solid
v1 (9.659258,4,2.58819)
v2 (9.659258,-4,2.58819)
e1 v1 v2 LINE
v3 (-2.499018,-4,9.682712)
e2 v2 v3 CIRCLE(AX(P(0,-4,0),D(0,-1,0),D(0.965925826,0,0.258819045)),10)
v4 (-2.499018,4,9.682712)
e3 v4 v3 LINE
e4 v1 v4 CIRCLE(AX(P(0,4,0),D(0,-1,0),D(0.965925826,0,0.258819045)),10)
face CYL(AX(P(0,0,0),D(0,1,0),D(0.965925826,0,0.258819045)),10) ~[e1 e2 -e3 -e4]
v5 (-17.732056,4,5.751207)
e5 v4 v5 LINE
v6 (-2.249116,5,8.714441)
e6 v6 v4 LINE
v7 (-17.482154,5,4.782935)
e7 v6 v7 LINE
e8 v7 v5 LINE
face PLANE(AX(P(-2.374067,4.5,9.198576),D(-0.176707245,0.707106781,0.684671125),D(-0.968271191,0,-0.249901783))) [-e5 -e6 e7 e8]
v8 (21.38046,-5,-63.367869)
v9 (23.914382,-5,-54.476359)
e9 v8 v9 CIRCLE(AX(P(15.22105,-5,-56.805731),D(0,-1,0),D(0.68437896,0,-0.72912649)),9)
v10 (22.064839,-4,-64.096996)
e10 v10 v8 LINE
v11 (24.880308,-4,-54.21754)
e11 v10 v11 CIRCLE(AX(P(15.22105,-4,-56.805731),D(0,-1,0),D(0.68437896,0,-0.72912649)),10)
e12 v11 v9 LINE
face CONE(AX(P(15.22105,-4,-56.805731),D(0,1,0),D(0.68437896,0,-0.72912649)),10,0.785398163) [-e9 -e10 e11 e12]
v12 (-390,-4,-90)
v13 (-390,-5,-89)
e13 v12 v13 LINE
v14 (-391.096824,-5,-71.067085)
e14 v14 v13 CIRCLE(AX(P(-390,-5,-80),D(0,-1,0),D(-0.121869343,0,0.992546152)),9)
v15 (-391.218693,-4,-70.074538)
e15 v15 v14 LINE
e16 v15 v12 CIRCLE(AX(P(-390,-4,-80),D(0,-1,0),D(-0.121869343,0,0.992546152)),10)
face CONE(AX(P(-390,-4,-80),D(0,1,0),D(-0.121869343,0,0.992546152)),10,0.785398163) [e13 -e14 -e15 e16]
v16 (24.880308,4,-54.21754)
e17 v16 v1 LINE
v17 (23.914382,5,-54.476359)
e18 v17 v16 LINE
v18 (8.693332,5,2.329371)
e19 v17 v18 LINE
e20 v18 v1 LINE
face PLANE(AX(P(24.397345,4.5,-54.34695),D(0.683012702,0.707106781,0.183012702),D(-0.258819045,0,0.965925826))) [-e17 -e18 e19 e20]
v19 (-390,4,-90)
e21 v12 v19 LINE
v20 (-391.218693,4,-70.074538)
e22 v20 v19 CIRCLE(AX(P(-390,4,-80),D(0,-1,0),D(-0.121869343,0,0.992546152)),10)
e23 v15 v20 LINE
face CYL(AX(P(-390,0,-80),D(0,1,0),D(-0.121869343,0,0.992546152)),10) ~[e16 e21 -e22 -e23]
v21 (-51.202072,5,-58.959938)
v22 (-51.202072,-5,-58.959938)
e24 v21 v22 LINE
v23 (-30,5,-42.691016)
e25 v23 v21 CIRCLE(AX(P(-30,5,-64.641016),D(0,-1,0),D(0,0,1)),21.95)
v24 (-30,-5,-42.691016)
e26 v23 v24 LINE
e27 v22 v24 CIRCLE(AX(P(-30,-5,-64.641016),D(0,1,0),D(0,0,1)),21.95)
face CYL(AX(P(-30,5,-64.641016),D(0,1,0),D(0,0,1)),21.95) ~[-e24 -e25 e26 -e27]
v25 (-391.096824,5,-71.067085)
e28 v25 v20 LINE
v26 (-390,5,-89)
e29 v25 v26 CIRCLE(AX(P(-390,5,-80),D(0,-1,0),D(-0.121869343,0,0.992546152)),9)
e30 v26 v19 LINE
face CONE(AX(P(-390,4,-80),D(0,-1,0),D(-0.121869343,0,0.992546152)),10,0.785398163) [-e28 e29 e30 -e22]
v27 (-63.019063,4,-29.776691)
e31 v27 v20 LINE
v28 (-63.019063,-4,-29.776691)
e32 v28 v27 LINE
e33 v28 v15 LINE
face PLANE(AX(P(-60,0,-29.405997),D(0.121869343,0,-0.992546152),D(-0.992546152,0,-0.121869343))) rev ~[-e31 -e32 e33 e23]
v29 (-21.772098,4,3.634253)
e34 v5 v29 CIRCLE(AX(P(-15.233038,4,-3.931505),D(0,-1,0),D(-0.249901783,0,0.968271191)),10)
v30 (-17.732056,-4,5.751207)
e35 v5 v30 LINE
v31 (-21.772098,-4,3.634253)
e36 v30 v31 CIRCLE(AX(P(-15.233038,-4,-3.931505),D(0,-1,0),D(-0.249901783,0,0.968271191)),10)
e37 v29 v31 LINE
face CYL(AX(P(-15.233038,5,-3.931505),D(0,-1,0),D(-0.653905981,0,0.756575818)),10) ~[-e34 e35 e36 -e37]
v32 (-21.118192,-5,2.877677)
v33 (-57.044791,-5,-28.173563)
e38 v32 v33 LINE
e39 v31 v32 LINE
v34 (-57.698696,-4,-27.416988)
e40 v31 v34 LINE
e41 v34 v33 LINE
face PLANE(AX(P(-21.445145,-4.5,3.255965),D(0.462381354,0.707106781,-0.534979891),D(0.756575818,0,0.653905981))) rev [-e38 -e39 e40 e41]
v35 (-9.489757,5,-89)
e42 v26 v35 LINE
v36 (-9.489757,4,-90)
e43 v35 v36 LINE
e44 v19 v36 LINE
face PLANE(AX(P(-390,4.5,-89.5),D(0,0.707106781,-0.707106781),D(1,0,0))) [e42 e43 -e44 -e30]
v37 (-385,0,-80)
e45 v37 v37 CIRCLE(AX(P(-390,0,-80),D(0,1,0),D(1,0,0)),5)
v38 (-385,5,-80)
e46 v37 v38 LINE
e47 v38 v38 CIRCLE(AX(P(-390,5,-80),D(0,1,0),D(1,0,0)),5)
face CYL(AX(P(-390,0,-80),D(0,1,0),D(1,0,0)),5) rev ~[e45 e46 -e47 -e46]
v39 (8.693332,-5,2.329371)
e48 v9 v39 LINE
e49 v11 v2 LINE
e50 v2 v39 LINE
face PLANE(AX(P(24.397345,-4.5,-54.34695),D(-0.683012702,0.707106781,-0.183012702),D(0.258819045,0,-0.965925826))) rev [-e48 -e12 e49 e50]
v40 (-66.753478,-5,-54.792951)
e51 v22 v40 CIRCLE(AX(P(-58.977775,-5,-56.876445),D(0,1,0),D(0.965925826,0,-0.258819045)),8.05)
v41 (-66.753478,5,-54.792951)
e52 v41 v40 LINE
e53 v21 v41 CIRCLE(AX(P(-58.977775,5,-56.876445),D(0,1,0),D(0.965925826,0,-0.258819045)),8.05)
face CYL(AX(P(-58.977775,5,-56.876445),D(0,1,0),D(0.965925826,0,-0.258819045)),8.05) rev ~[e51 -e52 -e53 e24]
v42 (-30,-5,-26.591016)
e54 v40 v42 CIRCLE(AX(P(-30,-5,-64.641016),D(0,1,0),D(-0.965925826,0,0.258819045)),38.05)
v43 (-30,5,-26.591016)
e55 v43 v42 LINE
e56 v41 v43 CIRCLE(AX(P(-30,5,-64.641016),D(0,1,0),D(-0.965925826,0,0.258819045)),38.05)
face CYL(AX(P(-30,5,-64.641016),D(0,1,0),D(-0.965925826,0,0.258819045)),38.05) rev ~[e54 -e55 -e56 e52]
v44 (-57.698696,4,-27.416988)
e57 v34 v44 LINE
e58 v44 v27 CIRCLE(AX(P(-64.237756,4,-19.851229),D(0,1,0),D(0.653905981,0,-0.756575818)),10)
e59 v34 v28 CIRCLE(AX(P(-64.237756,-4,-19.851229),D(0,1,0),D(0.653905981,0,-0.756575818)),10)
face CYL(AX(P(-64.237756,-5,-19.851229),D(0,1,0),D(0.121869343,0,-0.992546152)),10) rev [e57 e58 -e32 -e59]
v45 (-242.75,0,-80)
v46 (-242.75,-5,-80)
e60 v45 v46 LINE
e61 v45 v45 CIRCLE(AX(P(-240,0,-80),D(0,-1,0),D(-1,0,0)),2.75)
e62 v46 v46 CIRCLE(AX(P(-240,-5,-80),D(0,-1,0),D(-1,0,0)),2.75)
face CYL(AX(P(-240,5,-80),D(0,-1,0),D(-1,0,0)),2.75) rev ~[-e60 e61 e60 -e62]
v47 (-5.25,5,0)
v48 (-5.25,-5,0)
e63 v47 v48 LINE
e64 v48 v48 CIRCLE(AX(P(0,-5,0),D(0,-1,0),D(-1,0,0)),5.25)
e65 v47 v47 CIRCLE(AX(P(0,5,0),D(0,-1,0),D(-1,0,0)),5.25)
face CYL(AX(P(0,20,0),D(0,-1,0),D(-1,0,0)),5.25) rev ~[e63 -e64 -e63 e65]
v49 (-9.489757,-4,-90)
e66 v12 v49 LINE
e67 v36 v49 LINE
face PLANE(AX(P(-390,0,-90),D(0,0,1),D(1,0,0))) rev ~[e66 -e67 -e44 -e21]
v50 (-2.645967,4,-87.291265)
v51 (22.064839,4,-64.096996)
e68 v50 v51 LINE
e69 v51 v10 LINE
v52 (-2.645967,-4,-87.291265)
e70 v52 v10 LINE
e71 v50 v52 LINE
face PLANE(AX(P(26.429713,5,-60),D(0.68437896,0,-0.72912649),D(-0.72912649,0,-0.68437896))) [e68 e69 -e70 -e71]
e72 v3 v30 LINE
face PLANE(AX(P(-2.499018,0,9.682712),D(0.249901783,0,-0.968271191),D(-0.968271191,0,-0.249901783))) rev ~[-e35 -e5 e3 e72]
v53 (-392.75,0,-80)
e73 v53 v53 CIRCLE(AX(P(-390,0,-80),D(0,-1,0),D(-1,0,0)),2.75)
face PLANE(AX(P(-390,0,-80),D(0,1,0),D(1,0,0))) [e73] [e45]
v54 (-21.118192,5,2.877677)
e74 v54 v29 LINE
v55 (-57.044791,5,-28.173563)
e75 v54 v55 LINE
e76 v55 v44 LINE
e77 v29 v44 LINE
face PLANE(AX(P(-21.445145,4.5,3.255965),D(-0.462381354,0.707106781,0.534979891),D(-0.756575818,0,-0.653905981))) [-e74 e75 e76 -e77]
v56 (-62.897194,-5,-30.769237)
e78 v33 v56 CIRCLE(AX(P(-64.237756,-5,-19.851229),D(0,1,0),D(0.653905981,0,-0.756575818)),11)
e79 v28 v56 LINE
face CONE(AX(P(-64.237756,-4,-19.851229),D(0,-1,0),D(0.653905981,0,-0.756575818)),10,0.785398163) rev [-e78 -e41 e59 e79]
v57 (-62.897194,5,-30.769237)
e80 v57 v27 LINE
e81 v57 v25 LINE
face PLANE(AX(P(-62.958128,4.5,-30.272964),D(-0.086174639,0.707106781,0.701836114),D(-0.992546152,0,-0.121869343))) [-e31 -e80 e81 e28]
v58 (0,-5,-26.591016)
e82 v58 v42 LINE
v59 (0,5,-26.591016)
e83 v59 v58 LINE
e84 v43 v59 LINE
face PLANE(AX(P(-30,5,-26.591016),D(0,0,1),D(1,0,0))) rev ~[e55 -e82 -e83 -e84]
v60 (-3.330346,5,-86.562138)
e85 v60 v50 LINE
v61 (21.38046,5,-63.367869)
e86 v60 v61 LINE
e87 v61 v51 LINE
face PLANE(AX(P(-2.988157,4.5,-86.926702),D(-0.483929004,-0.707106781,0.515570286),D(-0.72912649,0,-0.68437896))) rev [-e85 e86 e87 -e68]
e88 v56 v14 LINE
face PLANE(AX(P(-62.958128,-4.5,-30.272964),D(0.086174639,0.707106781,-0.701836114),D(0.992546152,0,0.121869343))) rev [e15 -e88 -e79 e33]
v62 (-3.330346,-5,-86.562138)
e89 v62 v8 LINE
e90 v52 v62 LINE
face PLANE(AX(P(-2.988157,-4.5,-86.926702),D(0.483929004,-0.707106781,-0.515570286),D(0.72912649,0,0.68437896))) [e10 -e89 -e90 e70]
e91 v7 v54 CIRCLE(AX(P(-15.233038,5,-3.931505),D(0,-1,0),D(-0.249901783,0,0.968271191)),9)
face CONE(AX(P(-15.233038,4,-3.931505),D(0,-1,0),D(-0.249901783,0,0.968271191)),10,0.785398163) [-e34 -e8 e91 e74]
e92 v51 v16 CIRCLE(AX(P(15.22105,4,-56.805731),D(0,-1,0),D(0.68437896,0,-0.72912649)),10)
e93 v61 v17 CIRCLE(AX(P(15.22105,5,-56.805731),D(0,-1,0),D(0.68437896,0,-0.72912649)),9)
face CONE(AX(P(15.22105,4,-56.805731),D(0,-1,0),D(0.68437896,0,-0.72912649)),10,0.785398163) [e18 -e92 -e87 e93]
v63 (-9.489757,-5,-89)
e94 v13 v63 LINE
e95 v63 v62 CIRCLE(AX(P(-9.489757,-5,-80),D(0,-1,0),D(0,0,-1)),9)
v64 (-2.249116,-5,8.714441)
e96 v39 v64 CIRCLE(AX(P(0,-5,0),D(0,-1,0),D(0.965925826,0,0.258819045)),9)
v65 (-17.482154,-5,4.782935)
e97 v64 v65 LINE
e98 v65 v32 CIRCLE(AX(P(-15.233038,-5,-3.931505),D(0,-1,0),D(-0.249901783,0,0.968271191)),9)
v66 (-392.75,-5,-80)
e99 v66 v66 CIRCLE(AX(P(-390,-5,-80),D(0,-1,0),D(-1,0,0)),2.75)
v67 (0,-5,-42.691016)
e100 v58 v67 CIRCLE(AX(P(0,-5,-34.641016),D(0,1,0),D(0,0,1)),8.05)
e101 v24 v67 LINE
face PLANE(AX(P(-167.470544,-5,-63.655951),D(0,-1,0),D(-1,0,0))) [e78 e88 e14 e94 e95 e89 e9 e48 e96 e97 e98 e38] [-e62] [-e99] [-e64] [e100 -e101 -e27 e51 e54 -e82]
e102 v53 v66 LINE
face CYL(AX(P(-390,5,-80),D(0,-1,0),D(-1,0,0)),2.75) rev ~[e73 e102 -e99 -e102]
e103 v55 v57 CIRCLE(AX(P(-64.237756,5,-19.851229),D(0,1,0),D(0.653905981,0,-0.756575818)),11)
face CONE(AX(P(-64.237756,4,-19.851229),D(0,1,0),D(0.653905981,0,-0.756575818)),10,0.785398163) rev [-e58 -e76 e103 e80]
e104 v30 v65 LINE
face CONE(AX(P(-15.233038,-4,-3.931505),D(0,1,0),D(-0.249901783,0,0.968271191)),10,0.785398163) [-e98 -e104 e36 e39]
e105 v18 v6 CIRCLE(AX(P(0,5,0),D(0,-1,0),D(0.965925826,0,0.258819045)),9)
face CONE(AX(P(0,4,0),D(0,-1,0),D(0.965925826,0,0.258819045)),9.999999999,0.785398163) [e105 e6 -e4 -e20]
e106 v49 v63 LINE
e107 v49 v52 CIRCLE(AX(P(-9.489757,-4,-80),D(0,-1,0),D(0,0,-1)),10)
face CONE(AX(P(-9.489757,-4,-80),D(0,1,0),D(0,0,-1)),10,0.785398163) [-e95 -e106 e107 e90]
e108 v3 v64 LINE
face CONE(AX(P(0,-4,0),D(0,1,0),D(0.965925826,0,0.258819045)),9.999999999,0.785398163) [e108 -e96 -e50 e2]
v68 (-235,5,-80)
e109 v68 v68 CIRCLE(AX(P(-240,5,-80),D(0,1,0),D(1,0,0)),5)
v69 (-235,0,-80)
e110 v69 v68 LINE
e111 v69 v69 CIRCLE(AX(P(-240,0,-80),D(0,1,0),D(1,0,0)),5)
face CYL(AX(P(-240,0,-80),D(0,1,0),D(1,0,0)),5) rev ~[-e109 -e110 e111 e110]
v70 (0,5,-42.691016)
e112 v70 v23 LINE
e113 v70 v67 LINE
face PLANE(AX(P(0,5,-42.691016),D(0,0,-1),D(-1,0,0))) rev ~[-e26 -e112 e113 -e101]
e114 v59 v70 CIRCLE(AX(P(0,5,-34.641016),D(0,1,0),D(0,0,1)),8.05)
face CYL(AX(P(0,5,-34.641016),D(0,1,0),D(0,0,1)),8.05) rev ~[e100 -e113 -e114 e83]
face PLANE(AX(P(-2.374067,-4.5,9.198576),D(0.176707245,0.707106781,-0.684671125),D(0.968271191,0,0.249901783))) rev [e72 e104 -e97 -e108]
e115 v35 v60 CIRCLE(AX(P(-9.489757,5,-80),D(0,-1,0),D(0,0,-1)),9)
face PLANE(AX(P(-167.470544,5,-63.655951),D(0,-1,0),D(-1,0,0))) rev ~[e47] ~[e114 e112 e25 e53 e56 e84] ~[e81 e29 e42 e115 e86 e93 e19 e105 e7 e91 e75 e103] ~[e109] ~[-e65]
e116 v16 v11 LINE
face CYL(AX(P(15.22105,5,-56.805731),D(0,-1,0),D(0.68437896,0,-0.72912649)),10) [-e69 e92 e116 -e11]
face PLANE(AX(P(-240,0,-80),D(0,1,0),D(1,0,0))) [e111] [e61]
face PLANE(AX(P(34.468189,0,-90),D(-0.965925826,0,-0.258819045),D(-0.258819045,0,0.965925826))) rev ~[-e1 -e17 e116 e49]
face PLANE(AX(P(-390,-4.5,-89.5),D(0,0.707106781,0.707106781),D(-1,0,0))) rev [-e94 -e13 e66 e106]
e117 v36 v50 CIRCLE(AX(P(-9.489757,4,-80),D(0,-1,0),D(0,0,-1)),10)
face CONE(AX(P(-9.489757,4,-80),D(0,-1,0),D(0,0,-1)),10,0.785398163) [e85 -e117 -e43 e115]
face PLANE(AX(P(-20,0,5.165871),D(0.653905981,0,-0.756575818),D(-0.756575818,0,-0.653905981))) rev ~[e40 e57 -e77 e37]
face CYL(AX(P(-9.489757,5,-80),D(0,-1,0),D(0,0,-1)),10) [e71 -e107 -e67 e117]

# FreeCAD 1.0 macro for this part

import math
import FreeCAD as App
import Part
import Sketcher

V = App.Vector
Q = App.Units.Quantity


def edges_at(feature, points):
    """Names of the edges that pass closest to the given points."""
    edges = feature.Shape.Edges
    near = lambda p: min(range(len(edges)), key=lambda i: edges[i].distToShape(Part.Vertex(*p))[0])
    return sorted({f"Edge{near(p) + 1}" for p in points})


def add_polygon(sketch, points):
    """Adds a closed chain of lines whose ends are joined by coincident constraints."""
    first, n = sketch.GeometryCount, len(points)
    for a, b in zip(points, points[1:] + points[:1]):
        sketch.addGeometry(Part.LineSegment(App.Vector(*a, 0), App.Vector(*b, 0)), False)
    for i in range(n):
        sketch.addConstraint(Sketcher.Constraint("Coincident", first + i, 2, first + (i + 1) % n, 1))

doc = App.newDocument("Part")
body = doc.addObject("PartDesign::Body", "Body")

sketch1 = doc.addObject("Sketcher::SketchObject", "Sketch")
body.addObject(sketch1)
sketch1.AttachmentSupport = (doc.XZ_Plane, [""])
sketch1.MapMode = "FlatFace"
sketch1.addGeometry([
    Part.LineSegment(V(34.468189, -90, 0), V(-390, -90, 0)),
    Part.ArcOfCircle(Part.Circle(V(-390, -80, 0), V(0, 0, 1), 10), math.radians(97), math.radians(270)),
    Part.LineSegment(V(-391.218693, -70.074538, 0), V(-60, -29.405997, 0)),
    Part.LineSegment(V(-60, -29.405997, 0), V(-20, 5.165871, 0)),
    Part.LineSegment(V(-20, 5.165871, 0), V(-2.499018, 9.682712, 0)),
    Part.ArcOfCircle(Part.Circle(V(0, 0, 0), V(0, 0, 1), 10), math.radians(15), math.radians(104.4717)),
    Part.LineSegment(V(9.659258, 2.58819, 0), V(34.468189, -90, 0)),
], False)
sketch1.addConstraint([
    Sketcher.Constraint("Tangent", 0, 2, 1, 2),
    Sketcher.Constraint("Tangent", 1, 1, 2, 1),
    Sketcher.Constraint("Coincident", 2, 2, 3, 1),
    Sketcher.Constraint("Coincident", 3, 2, 4, 1),
    Sketcher.Constraint("Tangent", 4, 2, 5, 2),
    Sketcher.Constraint("Tangent", 5, 1, 6, 1),
    Sketcher.Constraint("Coincident", 6, 2, 0, 1),
    Sketcher.Constraint("Horizontal", 0),
    Sketcher.Constraint("Coincident", 5, 3, -1, 1),
    Sketcher.Constraint("Equal", 1, 5),
    Sketcher.Constraint("Radius", 1, Q("10 mm")),
    Sketcher.Constraint("Angle", 2, Q("7 deg")),
    Sketcher.Constraint("Angle", 6, Q("-75 deg")),
    Sketcher.Constraint("DistanceX", 1, 3, -1, 1, Q("390 mm")),
    Sketcher.Constraint("DistanceY", 1, 3, -1, 1, Q("80 mm")),
    Sketcher.Constraint("DistanceX", 2, 2, -1, 1, Q("60 mm")),
    Sketcher.Constraint("DistanceX", 3, 2, -1, 1, Q("20 mm")),
    Sketcher.Constraint("DistanceY", -1, 1, 3, 2, Q("5.165871 mm")),
])
pad1 = doc.addObject("PartDesign::Pad", "Pad")
body.addObject(pad1)
pad1.Profile = sketch1
pad1.Length = 10
pad1.Midplane = True

sketch2 = doc.addObject("Sketcher::SketchObject", "Sketch001")
body.addObject(sketch2)
sketch2.AttachmentSupport = (doc.XZ_Plane, [""])
sketch2.MapMode = "FlatFace"
sketch2.AttachmentOffset = App.Placement(V(0, 0, -5), App.Rotation())
sketch2.addGeometry([
    Part.LineSegment(V(-30, -26.591016, 0), V(0, -26.591016, 0)),
    Part.ArcOfCircle(Part.Circle(V(0, -34.641016, 0), V(0, 0, 1), 8.05), math.radians(-90), math.radians(90)),
    Part.LineSegment(V(0, -42.691016, 0), V(-30, -42.691016, 0)),
    Part.ArcOfCircle(Part.Circle(V(-30, -64.641016, 0), V(0, 0, 1), 21.95), math.radians(90), math.radians(165)),
    Part.ArcOfCircle(Part.Circle(V(-58.977775, -56.876445, 0), V(0, 0, 1), 8.05), math.radians(165), math.radians(345)),
    Part.ArcOfCircle(Part.Circle(V(-30, -64.641016, 0), V(0, 0, 1), 38.05), math.radians(90), math.radians(165)),
], False)
sketch2.addConstraint([
    Sketcher.Constraint("Tangent", 0, 2, 1, 2),
    Sketcher.Constraint("Tangent", 1, 1, 2, 1),
    Sketcher.Constraint("Tangent", 2, 2, 3, 1),
    Sketcher.Constraint("Tangent", 3, 2, 4, 2),
    Sketcher.Constraint("Tangent", 4, 1, 5, 2),
    Sketcher.Constraint("Tangent", 5, 1, 0, 1),
    Sketcher.Constraint("Horizontal", 0),
    Sketcher.Constraint("Horizontal", 2),
    Sketcher.Constraint("Coincident", 5, 3, 3, 3),
    Sketcher.Constraint("PointOnObject", 1, 3, -2),
    Sketcher.Constraint("DistanceX", 0, 1, 0, 2, Q("30 mm")),
    Sketcher.Constraint("Radius", 1, Q("8.05 mm")),
    Sketcher.Constraint("Radius", 3, Q("21.95 mm")),
    Sketcher.Constraint("DistanceX", 3, 2, -1, 1, Q("51.202072 mm")),
    Sketcher.Constraint("DistanceY", 4, 1, -1, 1, Q("54.792951 mm")),
])
pocket1 = doc.addObject("PartDesign::Pocket", "Pocket")
body.addObject(pocket1)
pocket1.Profile = sketch2
pocket1.Type = "ThroughAll"
pocket1.Reversed = True

sketch3 = doc.addObject("Sketcher::SketchObject", "Sketch002")
body.addObject(sketch3)
sketch3.AttachmentSupport = (doc.XZ_Plane, [""])
sketch3.MapMode = "FlatFace"
sketch3.AttachmentOffset = App.Placement(V(0, 0, -5), App.Rotation())
sketch3.addGeometry(Part.Circle(V(0, 0, 0), V(0, 0, 1), 5.25), False)
sketch3.addConstraint([
    Sketcher.Constraint("Coincident", 0, 3, -1, 1),
    Sketcher.Constraint("Diameter", 0, Q("10.5 mm")),
])
doc.recompute()
hole = doc.addObject("PartDesign::Hole", "Hole")
body.addObject(hole)
hole.Profile = sketch3
hole.ThreadType = "None"
hole.Diameter = 10.5
hole.DepthType = "Dimension"
hole.Depth = 15
hole.DrillPoint = "Angled"
hole.DrillPointAngle = 118
hole.Reversed = True

sketch4 = doc.addObject("Sketcher::SketchObject", "Sketch003")
body.addObject(sketch4)
sketch4.AttachmentSupport = (doc.XZ_Plane, [""])
sketch4.MapMode = "FlatFace"
sketch4.AttachmentOffset = App.Placement(V(0, 0, -5), App.Rotation())
sketch4.addGeometry([
    Part.Circle(V(-390, -80, 0), V(0, 0, 1), 2.75),
    Part.Circle(V(-240, -80, 0), V(0, 0, 1), 2.75),
], False)
sketch4.addConstraint([
    Sketcher.Constraint("Equal", 0, 1),
    Sketcher.Constraint("Horizontal", 0, 3, 1, 3),
    Sketcher.Constraint("Diameter", 0, Q("5.5 mm")),
    Sketcher.Constraint("DistanceX", 0, 3, -1, 1, Q("390 mm")),
    Sketcher.Constraint("DistanceY", 0, 3, -1, 1, Q("80 mm")),
    Sketcher.Constraint("DistanceX", 1, 3, -1, 1, Q("240 mm")),
])
doc.recompute()
hole2 = doc.addObject("PartDesign::Hole", "Hole001")
body.addObject(hole2)
hole2.Profile = sketch4
hole2.ThreadType = "None"
hole2.Diameter = 5.5
hole2.DepthType = "Dimension"
hole2.Depth = 15
hole2.DrillPoint = "Angled"
hole2.DrillPointAngle = 118
hole2.HoleCutType = "Counterbore"
hole2.HoleCutDiameter = 10
hole2.HoleCutDepth = 5
hole2.Reversed = True

sketch5 = doc.addObject("Sketcher::SketchObject", "Sketch004")
body.addObject(sketch5)
sketch5.AttachmentSupport = (doc.XZ_Plane, [""])
sketch5.MapMode = "FlatFace"
sketch5.AttachmentOffset = App.Placement(V(0, 0, -5), App.Rotation())
add_polygon(sketch5, [(34.468189, -90), (-5.531811, -90), (26.429713, -60)])
sketch5.addConstraint([
    Sketcher.Constraint("Horizontal", 0),
    Sketcher.Constraint("DistanceX", 0, 2, 0, 1, Q("40 mm")),
    Sketcher.Constraint("Angle", 2, Q("-75 deg")),
    Sketcher.Constraint("DistanceY", 0, 2, -1, 1, Q("90 mm")),
    Sketcher.Constraint("DistanceY", 1, 2, -1, 1, Q("60 mm")),
    Sketcher.Constraint("DistanceX", 0, 2, -1, 1, Q("5.531811 mm")),
])
pocket2 = doc.addObject("PartDesign::Pocket", "Pocket001")
body.addObject(pocket2)
pocket2.Profile = sketch5
pocket2.Type = "ThroughAll"
pocket2.Reversed = True
doc.recompute()

fillet = doc.addObject("PartDesign::Fillet", "Fillet")
body.addObject(fillet)
fillet.Base = (pocket2, edges_at(pocket2, [
    (-20, 0, 5.166),
    (-60, 0, -29.406),
    (26.43, 0, -60),
    (-5.532, 0, -90),
]))
fillet.Radius = 10
doc.recompute()

chamfer = doc.addObject("PartDesign::Chamfer", "Chamfer")
body.addObject(chamfer)
chamfer.Base = (fillet, edges_at(fillet, [
    (-399.981, -5, -80.61),
    (5.04, 5, 8.637),
    (17.27, 5, -25.815),
    (-399.981, 5, -80.61),
    (9.709, 5, -75.694),
    (9.709, -5, -75.694),
    (-199.745, 5, -90),
    (-39.735, 5, -11.891),
    (17.27, -5, -25.815),
    (-10.116, 5, 7.717),
    (-19.874, 5, 4.926),
    (24.838, 5, -59.546),
    (-5.81, 5, -89.298),
    (-199.745, -5, -90),
    (-10.116, -5, 7.717),
    (5.04, -5, 8.637),
    (-39.735, -5, -11.891),
    (-19.874, -5, 4.926),
    (24.838, -5, -59.546),
    (-5.81, -5, -89.298),
    (-60.183, -5, -28.992),
    (-227.119, 5, -49.926),
    (-60.183, 5, -28.992),
    (-227.119, -5, -49.926),
]))
chamfer.Size = 1

doc.recompute()
